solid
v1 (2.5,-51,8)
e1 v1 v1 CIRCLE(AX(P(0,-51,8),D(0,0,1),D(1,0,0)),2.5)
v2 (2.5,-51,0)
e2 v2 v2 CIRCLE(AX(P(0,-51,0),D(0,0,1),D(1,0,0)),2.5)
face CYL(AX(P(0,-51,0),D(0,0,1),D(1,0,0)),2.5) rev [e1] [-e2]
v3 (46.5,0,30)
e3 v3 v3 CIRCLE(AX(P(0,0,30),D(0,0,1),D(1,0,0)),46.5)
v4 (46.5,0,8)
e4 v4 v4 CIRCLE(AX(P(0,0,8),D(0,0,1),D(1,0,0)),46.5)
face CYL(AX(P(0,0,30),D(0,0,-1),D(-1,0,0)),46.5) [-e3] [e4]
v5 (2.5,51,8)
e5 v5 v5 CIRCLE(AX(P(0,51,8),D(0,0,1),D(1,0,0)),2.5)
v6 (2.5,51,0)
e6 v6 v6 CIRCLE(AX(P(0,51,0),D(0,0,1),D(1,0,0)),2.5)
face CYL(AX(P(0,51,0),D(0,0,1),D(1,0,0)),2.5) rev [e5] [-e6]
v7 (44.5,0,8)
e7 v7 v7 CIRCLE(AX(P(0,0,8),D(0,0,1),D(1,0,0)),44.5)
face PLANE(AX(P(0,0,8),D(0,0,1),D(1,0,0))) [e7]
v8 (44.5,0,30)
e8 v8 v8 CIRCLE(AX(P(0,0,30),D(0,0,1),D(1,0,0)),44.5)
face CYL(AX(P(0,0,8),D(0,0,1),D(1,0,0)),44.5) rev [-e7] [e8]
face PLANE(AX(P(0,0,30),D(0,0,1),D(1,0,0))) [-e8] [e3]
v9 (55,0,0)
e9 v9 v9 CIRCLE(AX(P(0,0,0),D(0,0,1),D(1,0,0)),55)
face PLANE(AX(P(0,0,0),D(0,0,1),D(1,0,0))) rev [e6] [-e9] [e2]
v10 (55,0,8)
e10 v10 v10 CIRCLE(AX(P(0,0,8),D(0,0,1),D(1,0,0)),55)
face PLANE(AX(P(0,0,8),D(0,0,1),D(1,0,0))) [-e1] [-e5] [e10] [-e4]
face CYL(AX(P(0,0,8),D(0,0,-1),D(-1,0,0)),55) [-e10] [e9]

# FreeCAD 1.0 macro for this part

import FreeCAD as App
import Part
import Sketcher

V = App.Vector
Q = App.Units.Quantity

doc = App.newDocument("Part")
params = doc.addObject("Spreadsheet::Sheet", "Params")
for row, (alias, value) in enumerate([
    ("sketch1_diameter", "93 mm"),
    ("pad1_length", "30 mm"),
    ("sketch2_diameter", "110 mm"),
    ("sketch2_diameter2", "93 mm"),
    ("pad2_length", "8 mm"),
    ("sketch3_diameter", "5 mm"),
    ("sketch4_diameter", "89 mm"),
    ("pocket2_length", "22 mm"),
], start=1):
    params.set(f"A{row}", alias)
    params.set(f"B{row}", "=" + value)
    params.setAlias(f"B{row}", alias)

body = doc.addObject("PartDesign::Body", "Body")

sketch1 = body.newObject("Sketcher::SketchObject", "Sketch")
sketch1.AttachmentSupport = (doc.getObject("XY_Plane"), [""])
sketch1.MapMode = "FlatFace"
sketch1.addGeometry(Part.Circle(V(0, 0, 0), V(0, 0, 1), 46.5), False)
sketch1.addConstraint(Sketcher.Constraint("Coincident", 0, 3, -1, 1))
sketch1.addConstraint(Sketcher.Constraint("Diameter", 0, Q("93 mm")))
sketch1.setExpression("Constraints[1]", "Params.sketch1_diameter")
pad1 = body.newObject("PartDesign::Pad", "Pad")
pad1.Profile = sketch1
pad1.setExpression("Length", "Params.pad1_length")

sketch2 = body.newObject("Sketcher::SketchObject", "Sketch001")
sketch2.AttachmentSupport = (doc.getObject("XY_Plane"), [""])
sketch2.MapMode = "FlatFace"
sketch2.addGeometry(Part.Circle(V(0, 0, 0), V(0, 0, 1), 55), False)
sketch2.addGeometry(Part.Circle(V(0, 0, 0), V(0, 0, 1), 46.5), False)
sketch2.addConstraint(Sketcher.Constraint("Coincident", 0, 3, -1, 1))
sketch2.addConstraint(Sketcher.Constraint("Coincident", 1, 3, -1, 1))
sketch2.addConstraint(Sketcher.Constraint("Diameter", 0, Q("110 mm")))
sketch2.addConstraint(Sketcher.Constraint("Diameter", 1, Q("93 mm")))
sketch2.setExpression("Constraints[2]", "Params.sketch2_diameter")
sketch2.setExpression("Constraints[3]", "Params.sketch2_diameter2")
pad2 = body.newObject("PartDesign::Pad", "Pad001")
pad2.Profile = sketch2
pad2.setExpression("Length", "Params.pad2_length")

sketch3 = body.newObject("Sketcher::SketchObject", "Sketch002")
sketch3.AttachmentSupport = (doc.getObject("XY_Plane"), [""])
sketch3.MapMode = "FlatFace"
sketch3.AttachmentOffset = App.Placement(V(0, 0, 8), App.Rotation())
sketch3.addGeometry(Part.Circle(V(0, 51, 0), V(0, 0, 1), 2.5), False)
sketch3.addGeometry(Part.Circle(V(0, -51, 0), V(0, 0, 1), 2.5), False)
sketch3.addConstraint(Sketcher.Constraint("Equal", 0, 1))
sketch3.addConstraint(Sketcher.Constraint("Symmetric", 0, 3, 1, 3, -1, 1))
sketch3.addConstraint(Sketcher.Constraint("PointOnObject", 0, 3, -2))
sketch3.addConstraint(Sketcher.Constraint("Diameter", 0, Q("5 mm")))
sketch3.addConstraint(Sketcher.Constraint("DistanceY", -1, 1, 0, 3, Q("51 mm")))
sketch3.setExpression("Constraints[3]", "Params.sketch3_diameter")
pocket1 = body.newObject("PartDesign::Pocket", "Pocket")
pocket1.Profile = sketch3
pocket1.Type = "ThroughAll"
pocket1.Midplane = True

sketch4 = body.newObject("Sketcher::SketchObject", "Sketch003")
sketch4.AttachmentSupport = (doc.getObject("XY_Plane"), [""])
sketch4.MapMode = "FlatFace"
sketch4.AttachmentOffset = App.Placement(V(0, 0, 30), App.Rotation())
sketch4.addGeometry(Part.Circle(V(0, 0, 0), V(0, 0, 1), 44.5), False)
sketch4.addConstraint(Sketcher.Constraint("Coincident", 0, 3, -1, 1))
sketch4.addConstraint(Sketcher.Constraint("Diameter", 0, Q("89 mm")))
sketch4.setExpression("Constraints[1]", "Params.sketch4_diameter")
pocket2 = body.newObject("PartDesign::Pocket", "Pocket001")
pocket2.Profile = sketch4
pocket2.setExpression("Length", "Params.pocket2_length")

doc.recompute()
